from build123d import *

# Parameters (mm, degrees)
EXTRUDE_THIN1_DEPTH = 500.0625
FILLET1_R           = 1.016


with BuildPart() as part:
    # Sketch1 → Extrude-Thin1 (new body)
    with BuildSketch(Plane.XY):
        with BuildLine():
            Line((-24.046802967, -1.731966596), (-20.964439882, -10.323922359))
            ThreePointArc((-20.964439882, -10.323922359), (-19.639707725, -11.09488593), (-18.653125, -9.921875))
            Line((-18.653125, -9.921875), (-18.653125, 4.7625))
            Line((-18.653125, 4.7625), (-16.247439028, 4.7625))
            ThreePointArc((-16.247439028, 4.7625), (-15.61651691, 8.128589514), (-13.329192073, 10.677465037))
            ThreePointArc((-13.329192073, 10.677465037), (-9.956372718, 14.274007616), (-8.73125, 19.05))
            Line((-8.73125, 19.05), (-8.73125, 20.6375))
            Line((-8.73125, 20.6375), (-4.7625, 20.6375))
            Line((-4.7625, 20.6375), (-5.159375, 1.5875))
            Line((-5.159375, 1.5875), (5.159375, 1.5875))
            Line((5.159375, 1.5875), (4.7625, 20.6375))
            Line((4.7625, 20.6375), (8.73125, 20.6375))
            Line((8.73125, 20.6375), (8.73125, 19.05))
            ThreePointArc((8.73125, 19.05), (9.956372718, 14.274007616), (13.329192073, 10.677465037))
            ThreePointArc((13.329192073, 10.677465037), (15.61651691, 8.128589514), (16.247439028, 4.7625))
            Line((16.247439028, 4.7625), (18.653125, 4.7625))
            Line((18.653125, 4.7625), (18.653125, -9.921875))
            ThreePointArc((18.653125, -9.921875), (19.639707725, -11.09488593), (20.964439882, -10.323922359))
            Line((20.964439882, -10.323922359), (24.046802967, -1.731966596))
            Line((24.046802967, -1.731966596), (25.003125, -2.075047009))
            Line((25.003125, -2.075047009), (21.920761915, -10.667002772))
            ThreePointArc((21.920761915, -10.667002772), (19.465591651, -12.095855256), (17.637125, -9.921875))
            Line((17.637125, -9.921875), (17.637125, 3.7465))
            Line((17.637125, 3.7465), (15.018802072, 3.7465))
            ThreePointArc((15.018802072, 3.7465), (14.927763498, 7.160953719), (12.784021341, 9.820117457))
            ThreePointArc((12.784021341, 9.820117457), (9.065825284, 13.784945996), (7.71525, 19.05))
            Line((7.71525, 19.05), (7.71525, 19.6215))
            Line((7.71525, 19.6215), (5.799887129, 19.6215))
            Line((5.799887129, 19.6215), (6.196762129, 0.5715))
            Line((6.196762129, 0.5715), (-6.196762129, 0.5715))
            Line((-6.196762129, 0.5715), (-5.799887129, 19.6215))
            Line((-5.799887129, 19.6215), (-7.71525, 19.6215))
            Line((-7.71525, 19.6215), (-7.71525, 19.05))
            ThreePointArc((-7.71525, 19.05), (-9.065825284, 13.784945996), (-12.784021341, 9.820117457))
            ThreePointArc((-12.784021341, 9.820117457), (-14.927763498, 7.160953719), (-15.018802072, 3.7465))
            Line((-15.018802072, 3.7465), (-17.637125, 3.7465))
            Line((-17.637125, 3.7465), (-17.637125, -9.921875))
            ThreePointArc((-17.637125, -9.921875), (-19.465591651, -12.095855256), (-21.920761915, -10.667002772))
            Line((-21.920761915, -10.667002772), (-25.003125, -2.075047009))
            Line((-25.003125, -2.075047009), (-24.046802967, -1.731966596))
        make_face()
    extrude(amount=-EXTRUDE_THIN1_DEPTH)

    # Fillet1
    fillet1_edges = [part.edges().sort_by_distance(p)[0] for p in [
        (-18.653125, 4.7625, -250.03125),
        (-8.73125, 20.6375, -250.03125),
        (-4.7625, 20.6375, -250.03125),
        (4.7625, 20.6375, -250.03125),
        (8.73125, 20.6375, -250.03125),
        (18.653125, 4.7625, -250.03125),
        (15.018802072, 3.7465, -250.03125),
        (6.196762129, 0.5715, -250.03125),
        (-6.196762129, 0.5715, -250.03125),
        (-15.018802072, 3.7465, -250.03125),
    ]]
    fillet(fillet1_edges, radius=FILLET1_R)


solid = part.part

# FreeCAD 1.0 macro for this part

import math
import FreeCAD as App
import Part
import Sketcher
from FreeCAD import Vector
Q = App.Units.Quantity


def edges_at(feature, points):
    """Names of the edges that pass closest to the given points."""
    edges = feature.Shape.Edges
    near = lambda p: min(range(len(edges)), key=lambda i: edges[i].distToShape(Part.Vertex(*p))[0])
    return sorted({f"Edge{near(p) + 1}" for p in points})

doc = App.newDocument("Part")
body = doc.addObject("PartDesign::Body", "Body")

# Sketch on XY plane
sketch1 = doc.addObject("Sketcher::SketchObject", "Sketch")
body.addObject(sketch1)
sketch1.AttachmentSupport = (doc.XY_Plane, [""])
sketch1.MapMode = "FlatFace"
sketch1.addGeometry(Part.LineSegment(Vector(-20.96444, -10.323922, 0), Vector(-24.046803, -1.731967, 0)), False)
sketch1.addGeometry(Part.LineSegment(Vector(-24.046803, -1.731967, 0), Vector(-25.003125, -2.075047, 0)), False)
sketch1.addGeometry(Part.LineSegment(Vector(-25.003125, -2.075047, 0), Vector(-21.920762, -10.667003, 0)), False)
sketch1.addGeometry(Part.ArcOfCircle(Part.Circle(Vector(-19.84375, -9.921875, 0), Vector(0, 0, 1), 2.206625), math.radians(-160.264558), math.radians(0)), False)
sketch1.addGeometry(Part.LineSegment(Vector(-17.637125, -9.921875, 0), Vector(-17.637125, 3.7465, 0)), False)
sketch1.addGeometry(Part.LineSegment(Vector(-17.637125, 3.7465, 0), Vector(-15.018802, 3.7465, 0)), False)
sketch1.addGeometry(Part.ArcOfCircle(Part.Circle(Vector(-9.921875, 5.319043, 0), Vector(0, 0, 1), 5.334), math.radians(122.451491), math.radians(197.146438)), False)
sketch1.addGeometry(Part.ArcOfCircle(Part.Circle(Vector(-18.653125, 19.05, 0), Vector(0, 0, 1), 10.937875), math.radians(-57.548509), math.radians(0)), False)
sketch1.addGeometry(Part.LineSegment(Vector(-7.71525, 19.05, 0), Vector(-7.71525, 19.6215, 0)), False)
sketch1.addGeometry(Part.LineSegment(Vector(-7.71525, 19.6215, 0), Vector(-5.799887, 19.6215, 0)), False)
sketch1.addGeometry(Part.LineSegment(Vector(-5.799887, 19.6215, 0), Vector(-6.196762, 0.5715, 0)), False)
sketch1.addGeometry(Part.LineSegment(Vector(-6.196762, 0.5715, 0), Vector(6.196762, 0.5715, 0)), False)
sketch1.addGeometry(Part.LineSegment(Vector(6.196762, 0.5715, 0), Vector(5.799887, 19.6215, 0)), False)
sketch1.addGeometry(Part.LineSegment(Vector(5.799887, 19.6215, 0), Vector(7.71525, 19.6215, 0)), False)
sketch1.addGeometry(Part.LineSegment(Vector(7.71525, 19.6215, 0), Vector(7.71525, 19.05, 0)), False)
sketch1.addGeometry(Part.ArcOfCircle(Part.Circle(Vector(18.653125, 19.05, 0), Vector(0, 0, 1), 10.937875), math.radians(-180), math.radians(-122.451491)), False)
sketch1.addGeometry(Part.ArcOfCircle(Part.Circle(Vector(9.921875, 5.319043, 0), Vector(0, 0, 1), 5.334), math.radians(-17.146438), math.radians(57.548509)), False)
sketch1.addGeometry(Part.LineSegment(Vector(15.018802, 3.7465, 0), Vector(17.637125, 3.7465, 0)), False)
sketch1.addGeometry(Part.LineSegment(Vector(17.637125, 3.7465, 0), Vector(17.637125, -9.921875, 0)), False)
sketch1.addGeometry(Part.ArcOfCircle(Part.Circle(Vector(19.84375, -9.921875, 0), Vector(0, 0, 1), 2.206625), math.radians(180), math.radians(340.264558)), False)
sketch1.addGeometry(Part.LineSegment(Vector(21.920762, -10.667003, 0), Vector(25.003125, -2.075047, 0)), False)
sketch1.addGeometry(Part.LineSegment(Vector(25.003125, -2.075047, 0), Vector(24.046803, -1.731967, 0)), False)
sketch1.addGeometry(Part.LineSegment(Vector(24.046803, -1.731967, 0), Vector(20.96444, -10.323922, 0)), False)
sketch1.addGeometry(Part.ArcOfCircle(Part.Circle(Vector(19.84375, -9.921875, 0), Vector(0, 0, 1), 1.190625), math.radians(180), math.radians(340.264558)), False)
sketch1.addGeometry(Part.LineSegment(Vector(18.653125, -9.921875, 0), Vector(18.653125, 4.7625, 0)), False)
sketch1.addGeometry(Part.LineSegment(Vector(18.653125, 4.7625, 0), Vector(16.247439, 4.7625, 0)), False)
sketch1.addGeometry(Part.ArcOfCircle(Part.Circle(Vector(9.921875, 5.319043, 0), Vector(0, 0, 1), 6.35), math.radians(-5.028112), math.radians(57.548509)), False)
sketch1.addGeometry(Part.ArcOfCircle(Part.Circle(Vector(18.653125, 19.05, 0), Vector(0, 0, 1), 9.921875), math.radians(-180), math.radians(-122.451491)), False)
sketch1.addGeometry(Part.LineSegment(Vector(8.73125, 19.05, 0), Vector(8.73125, 20.6375, 0)), False)
sketch1.addGeometry(Part.LineSegment(Vector(8.73125, 20.6375, 0), Vector(4.7625, 20.6375, 0)), False)
sketch1.addGeometry(Part.LineSegment(Vector(4.7625, 20.6375, 0), Vector(5.159375, 1.5875, 0)), False)
sketch1.addGeometry(Part.LineSegment(Vector(5.159375, 1.5875, 0), Vector(-5.159375, 1.5875, 0)), False)
sketch1.addGeometry(Part.LineSegment(Vector(-5.159375, 1.5875, 0), Vector(-4.7625, 20.6375, 0)), False)
sketch1.addGeometry(Part.LineSegment(Vector(-4.7625, 20.6375, 0), Vector(-8.73125, 20.6375, 0)), False)
sketch1.addGeometry(Part.LineSegment(Vector(-8.73125, 20.6375, 0), Vector(-8.73125, 19.05, 0)), False)
sketch1.addGeometry(Part.ArcOfCircle(Part.Circle(Vector(-18.653125, 19.05, 0), Vector(0, 0, 1), 9.921875), math.radians(-57.548509), math.radians(0)), False)
sketch1.addGeometry(Part.ArcOfCircle(Part.Circle(Vector(-9.921875, 5.319043, 0), Vector(0, 0, 1), 6.35), math.radians(122.451491), math.radians(185.028112)), False)
sketch1.addGeometry(Part.LineSegment(Vector(-16.247439, 4.7625, 0), Vector(-18.653125, 4.7625, 0)), False)
sketch1.addGeometry(Part.LineSegment(Vector(-18.653125, 4.7625, 0), Vector(-18.653125, -9.921875, 0)), False)
sketch1.addGeometry(Part.ArcOfCircle(Part.Circle(Vector(-19.84375, -9.921875, 0), Vector(0, 0, 1), 1.190625), math.radians(-160.264558), math.radians(0)), False)
sketch1.addConstraint(Sketcher.Constraint("Coincident", 0, 2, 1, 1))
sketch1.addConstraint(Sketcher.Constraint("Coincident", 1, 2, 2, 1))
sketch1.addConstraint(Sketcher.Constraint("Tangent", 2, 2, 3, 1))
sketch1.addConstraint(Sketcher.Constraint("Tangent", 3, 2, 4, 1))
sketch1.addConstraint(Sketcher.Constraint("Coincident", 4, 2, 5, 1))
sketch1.addConstraint(Sketcher.Constraint("Coincident", 5, 2, 6, 2))
sketch1.addConstraint(Sketcher.Constraint("Tangent", 6, 1, 7, 1))
sketch1.addConstraint(Sketcher.Constraint("Tangent", 7, 2, 8, 1))
sketch1.addConstraint(Sketcher.Constraint("Coincident", 8, 2, 9, 1))
sketch1.addConstraint(Sketcher.Constraint("Coincident", 9, 2, 10, 1))
sketch1.addConstraint(Sketcher.Constraint("Coincident", 10, 2, 11, 1))
sketch1.addConstraint(Sketcher.Constraint("Coincident", 11, 2, 12, 1))
sketch1.addConstraint(Sketcher.Constraint("Coincident", 12, 2, 13, 1))
sketch1.addConstraint(Sketcher.Constraint("Coincident", 13, 2, 14, 1))
sketch1.addConstraint(Sketcher.Constraint("Tangent", 14, 2, 15, 1))
sketch1.addConstraint(Sketcher.Constraint("Tangent", 15, 2, 16, 2))
sketch1.addConstraint(Sketcher.Constraint("Coincident", 16, 1, 17, 1))
sketch1.addConstraint(Sketcher.Constraint("Coincident", 17, 2, 18, 1))
sketch1.addConstraint(Sketcher.Constraint("Tangent", 18, 2, 19, 1))
sketch1.addConstraint(Sketcher.Constraint("Tangent", 19, 2, 20, 1))
sketch1.addConstraint(Sketcher.Constraint("Coincident", 20, 2, 21, 1))
sketch1.addConstraint(Sketcher.Constraint("Coincident", 21, 2, 22, 1))
sketch1.addConstraint(Sketcher.Constraint("Tangent", 22, 2, 23, 2))
sketch1.addConstraint(Sketcher.Constraint("Tangent", 23, 1, 24, 1))
sketch1.addConstraint(Sketcher.Constraint("Coincident", 24, 2, 25, 1))
sketch1.addConstraint(Sketcher.Constraint("Coincident", 25, 2, 26, 1))
sketch1.addConstraint(Sketcher.Constraint("Tangent", 26, 2, 27, 2))
sketch1.addConstraint(Sketcher.Constraint("Tangent", 27, 1, 28, 1))
sketch1.addConstraint(Sketcher.Constraint("Coincident", 28, 2, 29, 1))
sketch1.addConstraint(Sketcher.Constraint("Coincident", 29, 2, 30, 1))
sketch1.addConstraint(Sketcher.Constraint("Coincident", 30, 2, 31, 1))
sketch1.addConstraint(Sketcher.Constraint("Coincident", 31, 2, 32, 1))
sketch1.addConstraint(Sketcher.Constraint("Coincident", 32, 2, 33, 1))
sketch1.addConstraint(Sketcher.Constraint("Coincident", 33, 2, 34, 1))
sketch1.addConstraint(Sketcher.Constraint("Tangent", 34, 2, 35, 2))
sketch1.addConstraint(Sketcher.Constraint("Tangent", 35, 1, 36, 1))
sketch1.addConstraint(Sketcher.Constraint("Coincident", 36, 2, 37, 1))
sketch1.addConstraint(Sketcher.Constraint("Coincident", 37, 2, 38, 1))
sketch1.addConstraint(Sketcher.Constraint("Tangent", 38, 2, 39, 2))
sketch1.addConstraint(Sketcher.Constraint("Tangent", 39, 1, 0, 1))
sketch1.addConstraint(Sketcher.Constraint("Vertical", 4))
sketch1.addConstraint(Sketcher.Constraint("Horizontal", 5))
sketch1.addConstraint(Sketcher.Constraint("Vertical", 8))
sketch1.addConstraint(Sketcher.Constraint("Horizontal", 9))
sketch1.addConstraint(Sketcher.Constraint("Horizontal", 11))
sketch1.addConstraint(Sketcher.Constraint("Horizontal", 13))
sketch1.addConstraint(Sketcher.Constraint("Vertical", 14))
sketch1.addConstraint(Sketcher.Constraint("Horizontal", 17))
sketch1.addConstraint(Sketcher.Constraint("Vertical", 18))
sketch1.addConstraint(Sketcher.Constraint("Vertical", 24))
sketch1.addConstraint(Sketcher.Constraint("Horizontal", 25))
sketch1.addConstraint(Sketcher.Constraint("Vertical", 28))
sketch1.addConstraint(Sketcher.Constraint("Horizontal", 29))
sketch1.addConstraint(Sketcher.Constraint("Horizontal", 31))
sketch1.addConstraint(Sketcher.Constraint("Horizontal", 33))
sketch1.addConstraint(Sketcher.Constraint("Vertical", 34))
sketch1.addConstraint(Sketcher.Constraint("Horizontal", 37))
sketch1.addConstraint(Sketcher.Constraint("Vertical", 38))
sketch1.addConstraint(Sketcher.Constraint("Coincident", 23, 3, 19, 3))
sketch1.addConstraint(Sketcher.Constraint("Coincident", 26, 3, 16, 3))
sketch1.addConstraint(Sketcher.Constraint("Coincident", 27, 3, 15, 3))
sketch1.addConstraint(Sketcher.Constraint("Coincident", 35, 3, 7, 3))
sketch1.addConstraint(Sketcher.Constraint("Coincident", 36, 3, 6, 3))
sketch1.addConstraint(Sketcher.Constraint("Coincident", 39, 3, 3, 3))
sketch1.addConstraint(Sketcher.Constraint("Equal", 7, 15))
sketch1.addConstraint(Sketcher.Constraint("Equal", 6, 16))
sketch1.addConstraint(Sketcher.Constraint("Equal", 3, 19))
sketch1.addConstraint(Sketcher.Constraint("Equal", 27, 35))
sketch1.addConstraint(Sketcher.Constraint("Equal", 23, 39))
sketch1.addConstraint(Sketcher.Constraint("Symmetric", 7, 3, 15, 3, -2))
sketch1.addConstraint(Sketcher.Constraint("Symmetric", 3, 3, 19, 3, -2))
sketch1.addConstraint(Sketcher.Constraint("Symmetric", 9, 2, 12, 2, -2))
sketch1.addConstraint(Sketcher.Constraint("Symmetric", 5, 2, 16, 1, -2))
sketch1.addConstraint(Sketcher.Constraint("Symmetric", 1, 2, 20, 2, -2))
sketch1.addConstraint(Sketcher.Constraint("Symmetric", 0, 2, 21, 2, -2))
sketch1.addConstraint(Sketcher.Constraint("Symmetric", 29, 2, 32, 2, -2))
sketch1.addConstraint(Sketcher.Constraint("Perpendicular", 0, 1))
sketch1.addConstraint(Sketcher.Constraint("Perpendicular", 1, 2))
sketch1.addConstraint(Sketcher.Constraint("Parallel", 12, 30))
sketch1.addConstraint(Sketcher.Constraint("Parallel", 10, 32))
sketch1.addConstraint(Sketcher.Constraint("Horizontal", 25, 2, 36, 2))
sketch1.addConstraint(Sketcher.Constraint("Vertical", 27, 3, 23, 1))
sketch1.addConstraint(Sketcher.Constraint("Equal", 10, 12))
sketch1.addConstraint(Sketcher.Constraint("Equal", 12, 30))
sketch1.addConstraint(Sketcher.Constraint("Radius", 6, Q("0.21 in")))
sketch1.addConstraint(Sketcher.Constraint("Radius", 26, Q("0.25 in")))
sketch1.addConstraint(Sketcher.Constraint("Radius", 23, Q("0.046875 in")))
sketch1.addConstraint(Sketcher.Constraint("Radius", 27, Q("0.390625 in")))
sketch1.addConstraint(Sketcher.Constraint("Distance", 1, Q("0.04 in")))
sketch1.addConstraint(Sketcher.Constraint("DistanceX", 29, 2, 29, 1, Q("0.15625 in")))
sketch1.addConstraint(Sketcher.Constraint("DistanceX", 31, 2, 31, 1, Q("0.40625 in")))
sketch1.addConstraint(Sketcher.Constraint("DistanceY", 24, 1, 24, 2, Q("0.578125 in")))
sketch1.addConstraint(Sketcher.Constraint("DistanceY", 28, 1, 28, 2, Q("0.0625 in")))
sketch1.addConstraint(Sketcher.Constraint("DistanceY", -1, 1, 7, 3, Q("0.75 in")))
sketch1.addConstraint(Sketcher.Constraint("DistanceX", 1, 2, 3, 2, Q("0.29 in")))
sketch1.addConstraint(Sketcher.Constraint("DistanceY", 17, 2, 24, 2, Q("0.04 in")))
sketch1.addConstraint(Sketcher.Constraint("DistanceY", 13, 2, 28, 2, Q("0.04 in")))
sketch1.addConstraint(Sketcher.Constraint("Distance", 0, Q("0.359375 in")))
sketch1.addConstraint(Sketcher.Constraint("DistanceX", 3, 3, -1, 1, Q("0.78125 in")))
sketch1.addConstraint(Sketcher.Constraint("DistanceY", 3, 3, -1, 1, Q("0.390625 in")))
sketch1.addConstraint(Sketcher.Constraint("DistanceX", 6, 3, -1, 1, Q("0.390625 in")))
sketch1.addConstraint(Sketcher.Constraint("DistanceY", -1, 1, 30, 2, Q("0.0625 in")))
sketch1.addConstraint(Sketcher.Constraint("DistanceX", 9, 1, 9, 2, Q("1.915363 mm")))
pad1 = doc.addObject("PartDesign::Pad", "Pad")
body.addObject(pad1)
pad1.Profile = sketch1
pad1.Length = Q("19.6875 in")
pad1.Reversed = True
doc.recompute()

fillet = doc.addObject("PartDesign::Fillet", "Fillet")
body.addObject(fillet)
fillet.Base = (pad1, edges_at(pad1, [
    (-18.653, 4.763, -250.031),
    (-8.731, 20.637, -250.031),
    (-4.763, 20.637, -250.031),
    (4.763, 20.637, -250.031),
    (8.731, 20.637, -250.031),
    (18.653, 4.763, -250.031),
    (15.019, 3.747, -250.031),
    (6.197, 0.572, -250.031),
    (-6.197, 0.572, -250.031),
    (-15.019, 3.747, -250.031),
]))
fillet.Radius = Q("0.04 in")

doc.recompute()
